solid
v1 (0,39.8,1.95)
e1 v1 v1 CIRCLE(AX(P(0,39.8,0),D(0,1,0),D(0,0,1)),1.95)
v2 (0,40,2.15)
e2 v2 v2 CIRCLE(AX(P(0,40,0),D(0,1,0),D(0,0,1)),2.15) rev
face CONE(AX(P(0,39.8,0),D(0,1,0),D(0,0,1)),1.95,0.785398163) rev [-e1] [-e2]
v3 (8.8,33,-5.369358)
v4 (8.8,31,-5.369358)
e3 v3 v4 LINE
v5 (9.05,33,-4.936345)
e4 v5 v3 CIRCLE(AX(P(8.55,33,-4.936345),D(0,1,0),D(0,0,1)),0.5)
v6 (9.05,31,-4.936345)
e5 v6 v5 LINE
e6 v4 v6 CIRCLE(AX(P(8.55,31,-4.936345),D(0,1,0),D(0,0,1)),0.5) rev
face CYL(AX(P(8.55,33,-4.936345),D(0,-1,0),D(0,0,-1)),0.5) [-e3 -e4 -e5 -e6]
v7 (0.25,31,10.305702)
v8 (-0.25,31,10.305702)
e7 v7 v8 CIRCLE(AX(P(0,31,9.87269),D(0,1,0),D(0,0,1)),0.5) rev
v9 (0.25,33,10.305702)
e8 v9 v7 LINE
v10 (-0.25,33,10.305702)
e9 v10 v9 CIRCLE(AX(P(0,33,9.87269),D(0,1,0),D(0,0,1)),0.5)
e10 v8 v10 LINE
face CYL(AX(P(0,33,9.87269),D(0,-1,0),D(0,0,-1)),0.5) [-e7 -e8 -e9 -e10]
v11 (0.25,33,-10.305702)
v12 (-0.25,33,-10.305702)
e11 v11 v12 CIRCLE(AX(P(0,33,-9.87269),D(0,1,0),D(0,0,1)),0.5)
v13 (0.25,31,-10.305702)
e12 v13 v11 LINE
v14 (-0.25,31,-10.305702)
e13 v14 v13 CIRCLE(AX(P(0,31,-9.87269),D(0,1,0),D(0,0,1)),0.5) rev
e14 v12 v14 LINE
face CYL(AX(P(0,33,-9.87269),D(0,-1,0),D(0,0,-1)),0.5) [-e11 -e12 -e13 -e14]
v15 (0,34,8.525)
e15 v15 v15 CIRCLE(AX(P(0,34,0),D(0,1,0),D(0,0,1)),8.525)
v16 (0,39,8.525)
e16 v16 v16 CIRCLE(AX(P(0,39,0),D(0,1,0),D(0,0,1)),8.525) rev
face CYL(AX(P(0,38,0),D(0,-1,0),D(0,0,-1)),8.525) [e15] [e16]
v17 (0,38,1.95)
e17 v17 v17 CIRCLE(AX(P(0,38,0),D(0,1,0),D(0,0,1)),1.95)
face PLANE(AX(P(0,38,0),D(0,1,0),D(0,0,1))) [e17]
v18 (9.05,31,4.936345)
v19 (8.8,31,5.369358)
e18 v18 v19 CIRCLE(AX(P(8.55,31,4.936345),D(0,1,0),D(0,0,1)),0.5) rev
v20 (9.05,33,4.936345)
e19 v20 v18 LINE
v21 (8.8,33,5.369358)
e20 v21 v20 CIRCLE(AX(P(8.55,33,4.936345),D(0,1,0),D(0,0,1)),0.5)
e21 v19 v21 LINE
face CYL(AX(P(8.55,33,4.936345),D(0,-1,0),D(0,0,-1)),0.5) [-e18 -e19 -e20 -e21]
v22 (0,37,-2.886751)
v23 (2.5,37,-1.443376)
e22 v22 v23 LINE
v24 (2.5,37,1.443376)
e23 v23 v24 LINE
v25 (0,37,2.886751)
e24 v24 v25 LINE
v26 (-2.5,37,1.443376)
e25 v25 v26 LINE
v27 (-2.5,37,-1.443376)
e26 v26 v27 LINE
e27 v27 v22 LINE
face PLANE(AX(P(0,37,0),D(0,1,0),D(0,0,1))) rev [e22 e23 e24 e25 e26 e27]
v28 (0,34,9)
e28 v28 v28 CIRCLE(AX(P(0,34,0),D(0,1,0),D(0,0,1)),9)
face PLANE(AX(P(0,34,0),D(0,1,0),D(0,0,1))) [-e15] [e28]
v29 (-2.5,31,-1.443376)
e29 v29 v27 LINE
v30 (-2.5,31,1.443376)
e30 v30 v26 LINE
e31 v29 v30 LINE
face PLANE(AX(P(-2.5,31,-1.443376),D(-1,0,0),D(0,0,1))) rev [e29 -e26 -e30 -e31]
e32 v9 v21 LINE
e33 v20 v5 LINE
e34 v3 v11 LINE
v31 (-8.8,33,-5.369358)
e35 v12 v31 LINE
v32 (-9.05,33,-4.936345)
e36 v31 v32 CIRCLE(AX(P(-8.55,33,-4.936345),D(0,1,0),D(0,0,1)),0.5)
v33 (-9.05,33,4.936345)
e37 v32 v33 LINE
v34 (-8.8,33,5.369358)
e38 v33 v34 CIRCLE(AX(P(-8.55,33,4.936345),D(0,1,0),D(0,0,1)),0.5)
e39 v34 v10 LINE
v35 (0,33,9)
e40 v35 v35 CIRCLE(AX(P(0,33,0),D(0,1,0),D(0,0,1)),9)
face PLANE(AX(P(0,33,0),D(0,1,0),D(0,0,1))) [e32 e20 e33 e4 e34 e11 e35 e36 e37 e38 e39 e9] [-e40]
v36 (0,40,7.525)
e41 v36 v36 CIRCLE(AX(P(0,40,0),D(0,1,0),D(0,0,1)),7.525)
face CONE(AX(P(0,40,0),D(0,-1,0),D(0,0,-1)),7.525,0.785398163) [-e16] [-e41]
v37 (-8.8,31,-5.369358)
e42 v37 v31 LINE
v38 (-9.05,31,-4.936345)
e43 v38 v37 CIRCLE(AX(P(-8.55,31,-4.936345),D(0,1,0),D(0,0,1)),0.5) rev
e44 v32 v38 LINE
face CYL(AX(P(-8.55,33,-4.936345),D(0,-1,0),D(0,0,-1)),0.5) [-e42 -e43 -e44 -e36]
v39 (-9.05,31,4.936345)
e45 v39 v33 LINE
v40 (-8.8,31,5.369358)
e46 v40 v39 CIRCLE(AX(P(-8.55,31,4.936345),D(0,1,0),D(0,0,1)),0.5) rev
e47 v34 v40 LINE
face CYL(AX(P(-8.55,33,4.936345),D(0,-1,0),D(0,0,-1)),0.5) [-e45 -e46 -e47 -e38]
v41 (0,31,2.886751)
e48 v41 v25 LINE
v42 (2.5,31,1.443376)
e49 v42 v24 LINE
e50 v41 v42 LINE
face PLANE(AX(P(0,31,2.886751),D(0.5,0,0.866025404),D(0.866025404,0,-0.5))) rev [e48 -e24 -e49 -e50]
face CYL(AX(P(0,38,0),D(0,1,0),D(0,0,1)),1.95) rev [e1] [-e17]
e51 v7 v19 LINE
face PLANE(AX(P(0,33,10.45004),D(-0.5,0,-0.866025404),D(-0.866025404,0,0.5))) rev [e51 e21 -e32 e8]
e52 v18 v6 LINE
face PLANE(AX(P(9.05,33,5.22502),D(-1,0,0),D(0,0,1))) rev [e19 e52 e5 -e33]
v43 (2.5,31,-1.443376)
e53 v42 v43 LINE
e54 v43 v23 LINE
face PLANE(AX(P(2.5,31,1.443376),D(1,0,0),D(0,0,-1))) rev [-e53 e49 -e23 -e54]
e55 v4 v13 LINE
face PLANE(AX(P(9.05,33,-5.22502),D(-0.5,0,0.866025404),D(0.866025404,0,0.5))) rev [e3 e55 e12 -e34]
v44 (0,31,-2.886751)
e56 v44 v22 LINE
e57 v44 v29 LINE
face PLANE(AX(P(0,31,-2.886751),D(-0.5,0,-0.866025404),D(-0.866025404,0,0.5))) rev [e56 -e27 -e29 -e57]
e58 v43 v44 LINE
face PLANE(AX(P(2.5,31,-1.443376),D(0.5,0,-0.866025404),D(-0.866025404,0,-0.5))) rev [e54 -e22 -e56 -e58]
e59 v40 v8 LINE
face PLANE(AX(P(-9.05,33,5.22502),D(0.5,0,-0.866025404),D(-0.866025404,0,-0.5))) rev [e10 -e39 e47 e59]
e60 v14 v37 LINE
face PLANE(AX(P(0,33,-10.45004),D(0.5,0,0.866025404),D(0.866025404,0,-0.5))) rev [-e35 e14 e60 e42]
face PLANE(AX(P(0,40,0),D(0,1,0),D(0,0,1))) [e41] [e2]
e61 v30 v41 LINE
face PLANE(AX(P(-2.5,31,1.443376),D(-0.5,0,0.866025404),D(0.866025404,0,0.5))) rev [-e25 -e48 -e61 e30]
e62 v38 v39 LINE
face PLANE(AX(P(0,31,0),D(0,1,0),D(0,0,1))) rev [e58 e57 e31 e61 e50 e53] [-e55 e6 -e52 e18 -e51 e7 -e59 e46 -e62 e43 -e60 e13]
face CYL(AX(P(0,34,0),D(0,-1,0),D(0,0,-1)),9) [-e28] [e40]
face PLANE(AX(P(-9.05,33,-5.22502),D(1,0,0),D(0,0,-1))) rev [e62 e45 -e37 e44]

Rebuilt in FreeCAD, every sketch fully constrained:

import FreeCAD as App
import Part
import Sketcher

V = App.Vector
Q = App.Units.Quantity


def edges_at(feature, points):
    """Names of the edges that pass closest to the given points."""
    edges = feature.Shape.Edges
    near = lambda p: min(range(len(edges)), key=lambda i: edges[i].distToShape(Part.Vertex(*p))[0])
    return sorted({f"Edge{near(p) + 1}" for p in points})

doc = App.newDocument("Part")
body = doc.addObject("PartDesign::Body", "Body")

# Sketch on XZ plane
sketch1 = doc.addObject("Sketcher::SketchObject", "Sketch")
body.addObject(sketch1)
sketch1.AttachmentSupport = (doc.XZ_Plane, [""])
sketch1.MapMode = "FlatFace"
sketch1.AttachmentOffset = App.Placement(V(0, 0, -31), App.Rotation())
sketch1.addGeometry(Part.LineSegment(V(0, -10, 0), V(-9, -5, 0)), False)
sketch1.addGeometry(Part.LineSegment(V(-9, -5, 0), V(-9, 5, 0)), False)
sketch1.addGeometry(Part.LineSegment(V(-9, 5, 0), V(0, 10, 0)), False)
sketch1.addGeometry(Part.LineSegment(V(0, 10, 0), V(9, 5, 0)), False)
sketch1.addGeometry(Part.LineSegment(V(9, 5, 0), V(9, -5, 0)), False)
sketch1.addGeometry(Part.LineSegment(V(9, -5, 0), V(0, -10, 0)), False)
sketch1.addConstraint(Sketcher.Constraint("Coincident", 0, 2, 1, 1))
sketch1.addConstraint(Sketcher.Constraint("Coincident", 1, 2, 2, 1))
sketch1.addConstraint(Sketcher.Constraint("Coincident", 2, 2, 3, 1))
sketch1.addConstraint(Sketcher.Constraint("Coincident", 3, 2, 4, 1))
sketch1.addConstraint(Sketcher.Constraint("Coincident", 4, 2, 5, 1))
sketch1.addConstraint(Sketcher.Constraint("Coincident", 5, 2, 0, 1))
sketch1.addConstraint(Sketcher.Constraint("Vertical", 1))
sketch1.addConstraint(Sketcher.Constraint("Vertical", 4))
sketch1.addConstraint(Sketcher.Constraint("Symmetric", 0, 2, 3, 2, -1, 1))
sketch1.addConstraint(Sketcher.Constraint("Symmetric", 2, 2, 5, 2, -1, 1))
sketch1.addConstraint(Sketcher.Constraint("PointOnObject", 2, 2, -2))
sketch1.addConstraint(Sketcher.Constraint("Parallel", 2, 5))
sketch1.addConstraint(Sketcher.Constraint("Horizontal", 1, 2, 3, 2))
sketch1.addConstraint(Sketcher.Constraint("Angle", 0, Q("150 deg")))
sketch1.addConstraint(Sketcher.Constraint("DistanceX", 1, 2, 3, 2, Q("18.1 mm")))
sketch1.addConstraint(Sketcher.Constraint("DistanceY", 1, 1, 1, 2, Q("10.45004 mm")))
pad1 = doc.addObject("PartDesign::Pad", "Pad")
body.addObject(pad1)
pad1.Profile = sketch1
pad1.Length = 2
pad1.Reversed = True
doc.recompute()

fillet = doc.addObject("PartDesign::Fillet", "Fillet")
body.addObject(fillet)
fillet.Base = (pad1, edges_at(pad1, [
    (9.05, 32, -5.225),
    (9.05, 32, 5.225),
    (0, 32, 10.45),
    (-9.05, 32, 5.225),
    (-9.05, 32, -5.225),
    (0, 32, -10.45),
]))
fillet.Radius = 0.5

# Sketch on XZ plane
sketch2 = doc.addObject("Sketcher::SketchObject", "Sketch001")
body.addObject(sketch2)
sketch2.AttachmentSupport = (doc.XZ_Plane, [""])
sketch2.MapMode = "FlatFace"
sketch2.AttachmentOffset = App.Placement(V(0, 0, -33), App.Rotation())
sketch2.addGeometry(Part.Circle(V(0, 0, 0), V(0, 0, 1), 9), False)
sketch2.addConstraint(Sketcher.Constraint("Coincident", 0, 3, -1, 1))
sketch2.addConstraint(Sketcher.Constraint("Diameter", 0, Q("18 mm")))
pad2 = doc.addObject("PartDesign::Pad", "Pad001")
body.addObject(pad2)
pad2.Profile = sketch2
pad2.Length = 1
pad2.Reversed = True

# Sketch on XZ plane
sketch3 = doc.addObject("Sketcher::SketchObject", "Sketch002")
body.addObject(sketch3)
sketch3.AttachmentSupport = (doc.XZ_Plane, [""])
sketch3.MapMode = "FlatFace"
sketch3.AttachmentOffset = App.Placement(V(0, 0, -34), App.Rotation())
sketch3.addGeometry(Part.Circle(V(0, 0, 0), V(0, 0, 1), 9), False)
sketch3.addConstraint(Sketcher.Constraint("Coincident", 0, 3, -1, 1))
sketch3.addConstraint(Sketcher.Constraint("Diameter", 0, Q("17.05 mm")))
pad3 = doc.addObject("PartDesign::Pad", "Pad002")
body.addObject(pad3)
pad3.Profile = sketch3
pad3.Length = 4
pad3.Reversed = True

# Sketch on XZ plane
sketch4 = doc.addObject("Sketcher::SketchObject", "Sketch003")
body.addObject(sketch4)
sketch4.AttachmentSupport = (doc.XZ_Plane, [""])
sketch4.MapMode = "FlatFace"
sketch4.AttachmentOffset = App.Placement(V(0, 0, -38), App.Rotation())
sketch4.addGeometry(Part.LineSegment(V(0, -2.9, 0), V(-2.5, -1.4, 0)), False)
sketch4.addGeometry(Part.LineSegment(V(-2.5, -1.4, 0), V(-2.5, 1.4, 0)), False)
sketch4.addGeometry(Part.LineSegment(V(-2.5, 1.4, 0), V(0, 2.9, 0)), False)
sketch4.addGeometry(Part.LineSegment(V(0, 2.9, 0), V(2.5, 1.4, 0)), False)
sketch4.addGeometry(Part.LineSegment(V(2.5, 1.4, 0), V(2.5, -1.4, 0)), False)
sketch4.addGeometry(Part.LineSegment(V(2.5, -1.4, 0), V(0, -2.9, 0)), False)
sketch4.addConstraint(Sketcher.Constraint("Coincident", 0, 2, 1, 1))
sketch4.addConstraint(Sketcher.Constraint("Coincident", 1, 2, 2, 1))
sketch4.addConstraint(Sketcher.Constraint("Coincident", 2, 2, 3, 1))
sketch4.addConstraint(Sketcher.Constraint("Coincident", 3, 2, 4, 1))
sketch4.addConstraint(Sketcher.Constraint("Coincident", 4, 2, 5, 1))
sketch4.addConstraint(Sketcher.Constraint("Coincident", 5, 2, 0, 1))
sketch4.addConstraint(Sketcher.Constraint("Vertical", 1))
sketch4.addConstraint(Sketcher.Constraint("Vertical", 4))
sketch4.addConstraint(Sketcher.Constraint("Symmetric", 0, 2, 3, 2, -1, 1))
sketch4.addConstraint(Sketcher.Constraint("Symmetric", 2, 2, 5, 2, -1, 1))
sketch4.addConstraint(Sketcher.Constraint("PointOnObject", 2, 2, -2))
sketch4.addConstraint(Sketcher.Constraint("Parallel", 2, 5))
sketch4.addConstraint(Sketcher.Constraint("Horizontal", 1, 2, 3, 2))
sketch4.addConstraint(Sketcher.Constraint("Angle", 0, Q("150 deg")))
sketch4.addConstraint(Sketcher.Constraint("DistanceX", 1, 2, 3, 2, Q("5 mm")))
sketch4.addConstraint(Sketcher.Constraint("DistanceY", 1, 1, 1, 2, Q("2.886751 mm")))
pocket1 = doc.addObject("PartDesign::Pocket", "Pocket")
body.addObject(pocket1)
pocket1.Profile = sketch4
pocket1.Type = "ThroughAll"
pocket1.Reversed = True

# Sketch on XZ plane
sketch5 = doc.addObject("Sketcher::SketchObject", "Sketch004")
body.addObject(sketch5)
sketch5.AttachmentSupport = (doc.XZ_Plane, [""])
sketch5.MapMode = "FlatFace"
sketch5.AttachmentOffset = App.Placement(V(0, 0, -38), App.Rotation())
sketch5.addGeometry(Part.Circle(V(0, 0, 0), V(0, 0, 1), 9), False)
sketch5.addConstraint(Sketcher.Constraint("Coincident", 0, 3, -1, 1))
sketch5.addConstraint(Sketcher.Constraint("Diameter", 0, Q("17.05 mm")))
pad4 = doc.addObject("PartDesign::Pad", "Pad003")
body.addObject(pad4)
pad4.Profile = sketch5
pad4.Type = "TwoLengths"
pad4.Length = 1
pad4.Length2 = 1
pad4.Reversed = True

# Sketch on XZ plane
sketch6 = doc.addObject("Sketcher::SketchObject", "Sketch005")
body.addObject(sketch6)
sketch6.AttachmentSupport = (doc.XZ_Plane, [""])
sketch6.MapMode = "FlatFace"
sketch6.AttachmentOffset = App.Placement(V(0, 0, -39), App.Rotation())
sketch6.addGeometry(Part.Circle(V(0, 0, 0), V(0, 0, 1), 9), False)
sketch6.addConstraint(Sketcher.Constraint("Coincident", 0, 3, -1, 1))
sketch6.addConstraint(Sketcher.Constraint("Diameter", 0, Q("17.05 mm")))
pad5 = doc.addObject("PartDesign::Pad", "Pad004")
body.addObject(pad5)
pad5.Profile = sketch6
pad5.Length = 1
pad5.Reversed = True
doc.recompute()

chamfer = doc.addObject("PartDesign::Chamfer", "Chamfer")
body.addObject(chamfer)
chamfer.Base = (pad5, edges_at(pad5, [(0, 40, -8.525)]))
chamfer.Size = 1

# Sketch on XZ plane
sketch7 = doc.addObject("Sketcher::SketchObject", "Sketch006")
body.addObject(sketch7)
sketch7.AttachmentSupport = (doc.XZ_Plane, [""])
sketch7.MapMode = "FlatFace"
sketch7.AttachmentOffset = App.Placement(V(0, 0, -40), App.Rotation())
sketch7.addGeometry(Part.Circle(V(0, 0, 0), V(0, 0, 1), 1.9), False)
sketch7.addConstraint(Sketcher.Constraint("Coincident", 0, 3, -1, 1))
sketch7.addConstraint(Sketcher.Constraint("Diameter", 0, Q("3.9 mm")))
pocket2 = doc.addObject("PartDesign::Pocket", "Pocket001")
body.addObject(pocket2)
pocket2.Profile = sketch7
pocket2.Length = 2
pocket2.Reversed = True
doc.recompute()

chamfer2 = doc.addObject("PartDesign::Chamfer", "Chamfer001")
body.addObject(chamfer2)
chamfer2.Base = (pocket2, edges_at(pocket2, [(0, 40, -1.95)]))
chamfer2.Size = 0.2

doc.recompute()
